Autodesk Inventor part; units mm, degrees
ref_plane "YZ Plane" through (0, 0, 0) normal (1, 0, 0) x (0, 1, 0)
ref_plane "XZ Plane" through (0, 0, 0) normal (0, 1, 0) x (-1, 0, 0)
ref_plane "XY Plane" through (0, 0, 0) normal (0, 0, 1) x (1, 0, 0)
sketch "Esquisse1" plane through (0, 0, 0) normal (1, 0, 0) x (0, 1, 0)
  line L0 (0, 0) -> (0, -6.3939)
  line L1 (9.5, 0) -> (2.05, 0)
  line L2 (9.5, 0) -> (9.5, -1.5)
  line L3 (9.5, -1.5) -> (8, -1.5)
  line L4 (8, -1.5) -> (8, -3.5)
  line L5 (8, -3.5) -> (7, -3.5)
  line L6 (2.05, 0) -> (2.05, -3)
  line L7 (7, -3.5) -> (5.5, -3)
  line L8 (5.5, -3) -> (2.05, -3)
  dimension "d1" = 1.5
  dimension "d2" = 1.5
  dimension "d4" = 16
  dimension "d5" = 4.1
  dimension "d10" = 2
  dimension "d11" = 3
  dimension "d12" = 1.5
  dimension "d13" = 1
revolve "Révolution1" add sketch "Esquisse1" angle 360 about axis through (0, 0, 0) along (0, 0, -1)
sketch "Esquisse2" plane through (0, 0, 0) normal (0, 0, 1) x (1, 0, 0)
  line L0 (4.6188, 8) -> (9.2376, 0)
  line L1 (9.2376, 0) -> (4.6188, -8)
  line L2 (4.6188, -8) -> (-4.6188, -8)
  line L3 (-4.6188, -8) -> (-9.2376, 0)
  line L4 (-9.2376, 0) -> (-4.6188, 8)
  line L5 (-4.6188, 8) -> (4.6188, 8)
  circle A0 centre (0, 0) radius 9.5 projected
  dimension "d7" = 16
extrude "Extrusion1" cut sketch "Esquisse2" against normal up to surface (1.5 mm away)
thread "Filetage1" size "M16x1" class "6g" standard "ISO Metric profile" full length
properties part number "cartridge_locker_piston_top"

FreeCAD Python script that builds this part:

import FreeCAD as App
import Part
import Sketcher
Q = App.Units.Quantity

doc = App.newDocument("Part")
body = doc.addObject("PartDesign::Body", "Body")

sketch1 = body.newObject("Sketcher::SketchObject", "Sketch")
sketch1.AttachmentSupport = (doc.getObject("YZ_Plane"), [""])
sketch1.MapMode = "FlatFace"
sketch1.addGeometry(Part.LineSegment(App.Vector(9.5, -1.5, 0), App.Vector(9.5, 0, 0)), False)
sketch1.addGeometry(Part.LineSegment(App.Vector(9.5, 0, 0), App.Vector(2, 0, 0)), False)
sketch1.addGeometry(Part.LineSegment(App.Vector(2, 0, 0), App.Vector(2, -3, 0)), False)
sketch1.addGeometry(Part.LineSegment(App.Vector(2, -3, 0), App.Vector(5.5, -3, 0)), False)
sketch1.addGeometry(Part.LineSegment(App.Vector(5.5, -3, 0), App.Vector(7, -3.5, 0)), False)
sketch1.addGeometry(Part.LineSegment(App.Vector(7, -3.5, 0), App.Vector(8, -3.5, 0)), False)
sketch1.addGeometry(Part.LineSegment(App.Vector(8, -3.5, 0), App.Vector(8, -1.5, 0)), False)
sketch1.addGeometry(Part.LineSegment(App.Vector(8, -1.5, 0), App.Vector(9.5, -1.5, 0)), False)
sketch1.addConstraint(Sketcher.Constraint("Coincident", 0, 2, 1, 1))
sketch1.addConstraint(Sketcher.Constraint("Coincident", 1, 2, 2, 1))
sketch1.addConstraint(Sketcher.Constraint("Coincident", 2, 2, 3, 1))
sketch1.addConstraint(Sketcher.Constraint("Coincident", 3, 2, 4, 1))
sketch1.addConstraint(Sketcher.Constraint("Coincident", 4, 2, 5, 1))
sketch1.addConstraint(Sketcher.Constraint("Coincident", 5, 2, 6, 1))
sketch1.addConstraint(Sketcher.Constraint("Coincident", 6, 2, 7, 1))
sketch1.addConstraint(Sketcher.Constraint("Coincident", 7, 2, 0, 1))
sketch1.addConstraint(Sketcher.Constraint("Vertical", 0))
sketch1.addConstraint(Sketcher.Constraint("Horizontal", 1))
sketch1.addConstraint(Sketcher.Constraint("Vertical", 2))
sketch1.addConstraint(Sketcher.Constraint("Horizontal", 3))
sketch1.addConstraint(Sketcher.Constraint("Horizontal", 5))
sketch1.addConstraint(Sketcher.Constraint("Vertical", 6))
sketch1.addConstraint(Sketcher.Constraint("Horizontal", 7))
sketch1.addConstraint(Sketcher.Constraint("PointOnObject", 0, 2, -1))
sketch1.addConstraint(Sketcher.Constraint("Equal", 7, 0))
sketch1.addConstraint(Sketcher.Constraint("DistanceX", 5, 1, 5, 2, 1.0))
sketch1.addConstraint(Sketcher.Constraint("DistanceY", 2, 2, 2, 1, 3.0))
sketch1.addConstraint(Sketcher.Constraint("DistanceY", 6, 1, 6, 2, 2.0))
sketch1.addConstraint(Sketcher.Constraint("DistanceX", 7, 1, 7, 2, 1.5))
sketch1.addConstraint(Sketcher.Constraint("DistanceX", 3, 2, 4, 2, 1.5))
sketch1.addConstraint(Sketcher.Constraint("DistanceX", -1, 1, 4, 2, 7.0))
sketch1.addConstraint(Sketcher.Constraint("DistanceX", 1, 2, 1, 1, 7.45))
revolution = body.newObject("PartDesign::Revolution", "Revolution")
revolution.Profile = sketch1
revolution.ReferenceAxis = (sketch1, ["V_Axis"])
revolution.Angle = 360

sketch2 = body.newObject("Sketcher::SketchObject", "Sketch001")
sketch2.AttachmentSupport = (doc.getObject("XY_Plane"), [""])
sketch2.MapMode = "FlatFace"
sketch2.addGeometry(Part.Circle(App.Vector(0, 0, 0), App.Vector(0, 0, 1), 10), False)
sketch2.addGeometry(Part.LineSegment(App.Vector(-5, 8, 0), App.Vector(5, 8, 0)), False)
sketch2.addGeometry(Part.LineSegment(App.Vector(5, 8, 0), App.Vector(9, 0, 0)), False)
sketch2.addGeometry(Part.LineSegment(App.Vector(9, 0, 0), App.Vector(5, -8, 0)), False)
sketch2.addGeometry(Part.LineSegment(App.Vector(5, -8, 0), App.Vector(-5, -8, 0)), False)
sketch2.addGeometry(Part.LineSegment(App.Vector(-5, -8, 0), App.Vector(-9, 0, 0)), False)
sketch2.addGeometry(Part.LineSegment(App.Vector(-9, 0, 0), App.Vector(-5, 8, 0)), False)
sketch2.addConstraint(Sketcher.Constraint("Coincident", 1, 2, 2, 1))
sketch2.addConstraint(Sketcher.Constraint("Coincident", 2, 2, 3, 1))
sketch2.addConstraint(Sketcher.Constraint("Coincident", 3, 2, 4, 1))
sketch2.addConstraint(Sketcher.Constraint("Coincident", 4, 2, 5, 1))
sketch2.addConstraint(Sketcher.Constraint("Coincident", 5, 2, 6, 1))
sketch2.addConstraint(Sketcher.Constraint("Coincident", 6, 2, 1, 1))
sketch2.addConstraint(Sketcher.Constraint("Horizontal", 1))
sketch2.addConstraint(Sketcher.Constraint("Horizontal", 4))
sketch2.addConstraint(Sketcher.Constraint("Coincident", 0, 3, -1, 1))
sketch2.addConstraint(Sketcher.Constraint("Symmetric", 1, 2, 4, 2, -1, 1))
sketch2.addConstraint(Sketcher.Constraint("Symmetric", 2, 2, 5, 2, -1, 1))
sketch2.addConstraint(Sketcher.Constraint("PointOnObject", 2, 2, -1))
sketch2.addConstraint(Sketcher.Constraint("Parallel", 3, 6))
sketch2.addConstraint(Sketcher.Constraint("Vertical", 1, 2, 3, 2))
sketch2.addConstraint(Sketcher.Constraint("Diameter", 0, 19.0))
sketch2.addConstraint(Sketcher.Constraint("DistanceY", 3, 2, 1, 2, 16.0))
sketch2.addConstraint(Sketcher.Constraint("Angle", 2, Q("-60 deg")))
sketch2.addConstraint(Sketcher.Constraint("DistanceX", 1, 1, 1, 2, 9.2376))
pocket1 = body.newObject("PartDesign::Pocket", "Pocket")
pocket1.Profile = sketch2
pocket1.Length = 1.5

doc.recompute()
